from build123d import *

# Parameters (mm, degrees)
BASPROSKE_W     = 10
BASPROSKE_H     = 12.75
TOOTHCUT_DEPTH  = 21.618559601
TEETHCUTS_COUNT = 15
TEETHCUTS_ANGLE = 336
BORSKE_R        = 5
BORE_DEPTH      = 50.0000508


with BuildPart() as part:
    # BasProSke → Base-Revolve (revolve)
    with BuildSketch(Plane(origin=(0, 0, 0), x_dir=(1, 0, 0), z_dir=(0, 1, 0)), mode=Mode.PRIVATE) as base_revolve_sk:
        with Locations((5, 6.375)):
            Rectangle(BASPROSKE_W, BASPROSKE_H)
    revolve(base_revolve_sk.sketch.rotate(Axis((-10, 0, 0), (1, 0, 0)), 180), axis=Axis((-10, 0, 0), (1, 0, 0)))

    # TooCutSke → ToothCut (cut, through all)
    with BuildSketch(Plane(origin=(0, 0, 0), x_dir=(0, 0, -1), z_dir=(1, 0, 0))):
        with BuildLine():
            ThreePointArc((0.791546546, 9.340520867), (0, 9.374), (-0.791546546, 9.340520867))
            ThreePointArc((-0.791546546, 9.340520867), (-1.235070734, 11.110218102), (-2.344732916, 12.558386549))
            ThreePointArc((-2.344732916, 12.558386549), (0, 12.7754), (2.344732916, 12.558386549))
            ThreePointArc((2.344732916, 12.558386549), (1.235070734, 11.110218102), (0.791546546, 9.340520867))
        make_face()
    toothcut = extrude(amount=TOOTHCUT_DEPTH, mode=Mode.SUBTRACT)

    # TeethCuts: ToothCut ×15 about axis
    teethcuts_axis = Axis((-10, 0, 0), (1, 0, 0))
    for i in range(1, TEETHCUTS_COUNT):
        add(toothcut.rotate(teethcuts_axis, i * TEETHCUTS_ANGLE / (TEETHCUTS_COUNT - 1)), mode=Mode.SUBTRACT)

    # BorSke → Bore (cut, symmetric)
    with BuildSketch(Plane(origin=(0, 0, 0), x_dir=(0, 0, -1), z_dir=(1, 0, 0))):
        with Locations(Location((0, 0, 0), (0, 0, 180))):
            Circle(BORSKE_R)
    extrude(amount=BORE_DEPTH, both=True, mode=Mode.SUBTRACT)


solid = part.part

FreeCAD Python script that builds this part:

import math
import FreeCAD as App
import Part
import Sketcher

doc = App.newDocument("Part")
body = doc.addObject("PartDesign::Body", "Body")

# Sketch on XZ plane
sketch1 = body.newObject("Sketcher::SketchObject", "Sketch")
sketch1.AttachmentSupport = (doc.getObject("XZ_Plane"), [""])
sketch1.MapMode = "FlatFace"
sketch1.addGeometry(Part.LineSegment(App.Vector(0, -13, 0), App.Vector(0, 0, 0)), False)
sketch1.addGeometry(Part.LineSegment(App.Vector(0, 0, 0), App.Vector(10, 0, 0)), False)
sketch1.addGeometry(Part.LineSegment(App.Vector(10, 0, 0), App.Vector(10, -13, 0)), False)
sketch1.addGeometry(Part.LineSegment(App.Vector(10, -13, 0), App.Vector(0, -13, 0)), False)
sketch1.addConstraint(Sketcher.Constraint("Coincident", 0, 2, 1, 1))
sketch1.addConstraint(Sketcher.Constraint("Coincident", 1, 2, 2, 1))
sketch1.addConstraint(Sketcher.Constraint("Coincident", 2, 2, 3, 1))
sketch1.addConstraint(Sketcher.Constraint("Coincident", 3, 2, 0, 1))
sketch1.addConstraint(Sketcher.Constraint("Vertical", 0))
sketch1.addConstraint(Sketcher.Constraint("Horizontal", 1))
sketch1.addConstraint(Sketcher.Constraint("Vertical", 2))
sketch1.addConstraint(Sketcher.Constraint("Horizontal", 3))
sketch1.addConstraint(Sketcher.Constraint("Coincident", 0, 2, -1, 1))
sketch1.addConstraint(Sketcher.Constraint("DistanceX", 1, 1, 1, 2, 10.0))
sketch1.addConstraint(Sketcher.Constraint("DistanceY", 0, 1, 0, 2, 12.75))
revolution = body.newObject("PartDesign::Revolution", "Revolution")
revolution.Profile = sketch1
revolution.ReferenceAxis = (sketch1, ["H_Axis"])
revolution.Angle = 360

# Sketch on YZ plane
sketch2 = body.newObject("Sketcher::SketchObject", "Sketch001")
sketch2.AttachmentSupport = (doc.getObject("YZ_Plane"), [""])
sketch2.MapMode = "FlatFace"
sketch2.addGeometry(Part.ArcOfCircle(Part.Circle(App.Vector(0, 0, 0), App.Vector(0, 0, 1), 9.4), math.radians(-4.84), math.radians(4.84)), False)
sketch2.addGeometry(Part.ArcOfCircle(Part.Circle(App.Vector(9.2, -5.3, 0), App.Vector(0, 0, 1), 4.5), math.radians(41), math.radians(88)), False)
sketch2.addGeometry(Part.ArcOfCircle(Part.Circle(App.Vector(0, 0, 0), App.Vector(0, 0, 1), 12.8), math.radians(-11), math.radians(11)), False)
sketch2.addGeometry(Part.ArcOfCircle(Part.Circle(App.Vector(9.2, 5.3, 0), App.Vector(0, 0, 1), 4.5), math.radians(-88), math.radians(-41)), False)
sketch2.addConstraint(Sketcher.Constraint("Coincident", 0, 1, 1, 2))
sketch2.addConstraint(Sketcher.Constraint("Coincident", 1, 1, 2, 1))
sketch2.addConstraint(Sketcher.Constraint("Coincident", 2, 2, 3, 2))
sketch2.addConstraint(Sketcher.Constraint("Coincident", 3, 1, 0, 2))
sketch2.addConstraint(Sketcher.Constraint("Coincident", 0, 3, -1, 1))
sketch2.addConstraint(Sketcher.Constraint("Coincident", 2, 3, -1, 1))
sketch2.addConstraint(Sketcher.Constraint("Equal", 1, 3))
sketch2.addConstraint(Sketcher.Constraint("Symmetric", 1, 3, 3, 3, -1))
sketch2.addConstraint(Sketcher.Constraint("Radius", 1, 4.5))
sketch2.addConstraint(Sketcher.Constraint("Radius", 0, 9.374))
sketch2.addConstraint(Sketcher.Constraint("Radius", 2, 12.7754))
sketch2.addConstraint(Sketcher.Constraint("DistanceX", 1, 3, 0, 1, 0.186402))
sketch2.addConstraint(Sketcher.Constraint("DistanceX", -1, 1, 1, 3, 9.154119))
pocket1 = body.newObject("PartDesign::Pocket", "Pocket")
pocket1.Profile = sketch2
pocket1.Type = "ThroughAll"
pocket1.Reversed = True
doc.recompute()

polarpattern = body.newObject("PartDesign::PolarPattern", "PolarPattern")
polarpattern.Originals = [pocket1]
polarpattern.Axis = (doc.getObject("X_Axis"), [""])
polarpattern.Angle = 360
polarpattern.Occurrences = 15
body.Tip = polarpattern

# Sketch on YZ plane
sketch3 = body.newObject("Sketcher::SketchObject", "Sketch002")
sketch3.AttachmentSupport = (doc.getObject("YZ_Plane"), [""])
sketch3.MapMode = "FlatFace"
sketch3.addGeometry(Part.Circle(App.Vector(0, 0, 0), App.Vector(0, 0, 1), 5), False)
sketch3.addConstraint(Sketcher.Constraint("Coincident", 0, 3, -1, 1))
sketch3.addConstraint(Sketcher.Constraint("Diameter", 0, 10.0))
pocket2 = body.newObject("PartDesign::Pocket", "Pocket001")
pocket2.Profile = sketch3
pocket2.Length = 100.000102
pocket2.Midplane = True

doc.recompute()
